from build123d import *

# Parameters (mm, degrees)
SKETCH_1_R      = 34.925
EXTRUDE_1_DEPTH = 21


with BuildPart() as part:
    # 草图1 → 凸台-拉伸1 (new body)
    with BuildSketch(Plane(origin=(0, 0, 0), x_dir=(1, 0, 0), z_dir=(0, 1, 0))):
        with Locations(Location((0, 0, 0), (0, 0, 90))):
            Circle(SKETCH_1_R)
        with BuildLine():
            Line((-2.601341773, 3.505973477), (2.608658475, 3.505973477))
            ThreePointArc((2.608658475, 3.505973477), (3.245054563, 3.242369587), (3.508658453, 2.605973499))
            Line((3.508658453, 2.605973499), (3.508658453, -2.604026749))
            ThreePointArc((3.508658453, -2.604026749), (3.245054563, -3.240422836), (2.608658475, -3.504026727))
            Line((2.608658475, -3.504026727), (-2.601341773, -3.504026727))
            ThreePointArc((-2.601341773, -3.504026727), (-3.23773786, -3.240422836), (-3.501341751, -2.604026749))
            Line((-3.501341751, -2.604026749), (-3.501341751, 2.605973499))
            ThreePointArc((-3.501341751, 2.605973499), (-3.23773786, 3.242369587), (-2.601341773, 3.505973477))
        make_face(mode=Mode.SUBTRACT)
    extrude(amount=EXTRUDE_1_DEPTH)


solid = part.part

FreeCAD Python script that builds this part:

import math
import FreeCAD as App
import Part
import Sketcher

V = App.Vector

doc = App.newDocument("Part")
params = doc.addObject("Spreadsheet::Sheet", "Params")
for row, (alias, value) in enumerate([
    ("sketch1_radius", "0.9 mm"),
    ("sketch1_diameter", "69.85 mm"),
    ("sketch1_width", "5.21 mm"),
    ("pad1_length", "21 mm"),
], start=1):
    params.set(f"A{row}", alias)
    params.set(f"B{row}", "=" + value)
    params.setAlias(f"B{row}", alias)

body = doc.addObject("PartDesign::Body", "Body")

# Sketch on XZ plane
sketch1 = body.newObject("Sketcher::SketchObject", "Sketch")
sketch1.AttachmentSupport = (doc.getObject("XZ_Plane"), [""])
sketch1.MapMode = "FlatFace"
sketch1.addGeometry(Part.Circle(V(0, 0, 0), V(0, 0, 1), 34.9), False)
sketch1.addGeometry(Part.ArcOfCircle(Part.Circle(V(-2.6, -2.6, 0), V(0, 0, 1), 0.9), math.radians(180), math.radians(270)), False)
sketch1.addGeometry(Part.LineSegment(V(-2.6, -3.5, 0), V(2.6, -3.5, 0)), False)
sketch1.addGeometry(Part.ArcOfCircle(Part.Circle(V(2.6, -2.6, 0), V(0, 0, 1), 0.9), math.radians(-90), math.radians(0)), False)
sketch1.addGeometry(Part.LineSegment(V(3.5, -2.6, 0), V(3.5, 2.6, 0)), False)
sketch1.addGeometry(Part.ArcOfCircle(Part.Circle(V(2.6, 2.6, 0), V(0, 0, 1), 0.9), math.radians(0), math.radians(90)), False)
sketch1.addGeometry(Part.LineSegment(V(2.6, 3.5, 0), V(-2.6, 3.5, 0)), False)
sketch1.addGeometry(Part.ArcOfCircle(Part.Circle(V(-2.6, 2.6, 0), V(0, 0, 1), 0.9), math.radians(90), math.radians(180)), False)
sketch1.addGeometry(Part.LineSegment(V(-3.5, 2.6, 0), V(-3.5, -2.6, 0)), False)
sketch1.addConstraint(Sketcher.Constraint("Tangent", 1, 2, 2, 1))
sketch1.addConstraint(Sketcher.Constraint("Tangent", 2, 2, 3, 1))
sketch1.addConstraint(Sketcher.Constraint("Tangent", 3, 2, 4, 1))
sketch1.addConstraint(Sketcher.Constraint("Tangent", 4, 2, 5, 1))
sketch1.addConstraint(Sketcher.Constraint("Tangent", 5, 2, 6, 1))
sketch1.addConstraint(Sketcher.Constraint("Tangent", 6, 2, 7, 1))
sketch1.addConstraint(Sketcher.Constraint("Tangent", 7, 2, 8, 1))
sketch1.addConstraint(Sketcher.Constraint("Tangent", 8, 2, 1, 1))
sketch1.addConstraint(Sketcher.Constraint("Horizontal", 2))
sketch1.addConstraint(Sketcher.Constraint("Vertical", 4))
sketch1.addConstraint(Sketcher.Constraint("Horizontal", 6))
sketch1.addConstraint(Sketcher.Constraint("Vertical", 8))
sketch1.addConstraint(Sketcher.Constraint("Coincident", 0, 3, -1, 1))
sketch1.addConstraint(Sketcher.Constraint("Equal", 1, 3))
sketch1.addConstraint(Sketcher.Constraint("Equal", 3, 5))
sketch1.addConstraint(Sketcher.Constraint("Equal", 5, 7))
sketch1.addConstraint(Sketcher.Constraint("Equal", 6, 4))
sketch1.addConstraint(Sketcher.Constraint("Radius", 1, 0.9))
sketch1.addConstraint(Sketcher.Constraint("Diameter", 0, 69.85))
sketch1.addConstraint(Sketcher.Constraint("DistanceX", 2, 1, 2, 2, 5.21))
sketch1.addConstraint(Sketcher.Constraint("DistanceX", 1, 3, -1, 1, 2.601342))
sketch1.addConstraint(Sketcher.Constraint("DistanceY", 1, 3, -1, 1, 2.605973))
sketch1.setExpression("Constraints[17]", "Params.sketch1_radius")
sketch1.setExpression("Constraints[18]", "Params.sketch1_diameter")
sketch1.setExpression("Constraints[19]", "Params.sketch1_width")
pad1 = body.newObject("PartDesign::Pad", "Pad")
pad1.Profile = sketch1
pad1.setExpression("Length", "Params.pad1_length")
pad1.Reversed = True

doc.recompute()
